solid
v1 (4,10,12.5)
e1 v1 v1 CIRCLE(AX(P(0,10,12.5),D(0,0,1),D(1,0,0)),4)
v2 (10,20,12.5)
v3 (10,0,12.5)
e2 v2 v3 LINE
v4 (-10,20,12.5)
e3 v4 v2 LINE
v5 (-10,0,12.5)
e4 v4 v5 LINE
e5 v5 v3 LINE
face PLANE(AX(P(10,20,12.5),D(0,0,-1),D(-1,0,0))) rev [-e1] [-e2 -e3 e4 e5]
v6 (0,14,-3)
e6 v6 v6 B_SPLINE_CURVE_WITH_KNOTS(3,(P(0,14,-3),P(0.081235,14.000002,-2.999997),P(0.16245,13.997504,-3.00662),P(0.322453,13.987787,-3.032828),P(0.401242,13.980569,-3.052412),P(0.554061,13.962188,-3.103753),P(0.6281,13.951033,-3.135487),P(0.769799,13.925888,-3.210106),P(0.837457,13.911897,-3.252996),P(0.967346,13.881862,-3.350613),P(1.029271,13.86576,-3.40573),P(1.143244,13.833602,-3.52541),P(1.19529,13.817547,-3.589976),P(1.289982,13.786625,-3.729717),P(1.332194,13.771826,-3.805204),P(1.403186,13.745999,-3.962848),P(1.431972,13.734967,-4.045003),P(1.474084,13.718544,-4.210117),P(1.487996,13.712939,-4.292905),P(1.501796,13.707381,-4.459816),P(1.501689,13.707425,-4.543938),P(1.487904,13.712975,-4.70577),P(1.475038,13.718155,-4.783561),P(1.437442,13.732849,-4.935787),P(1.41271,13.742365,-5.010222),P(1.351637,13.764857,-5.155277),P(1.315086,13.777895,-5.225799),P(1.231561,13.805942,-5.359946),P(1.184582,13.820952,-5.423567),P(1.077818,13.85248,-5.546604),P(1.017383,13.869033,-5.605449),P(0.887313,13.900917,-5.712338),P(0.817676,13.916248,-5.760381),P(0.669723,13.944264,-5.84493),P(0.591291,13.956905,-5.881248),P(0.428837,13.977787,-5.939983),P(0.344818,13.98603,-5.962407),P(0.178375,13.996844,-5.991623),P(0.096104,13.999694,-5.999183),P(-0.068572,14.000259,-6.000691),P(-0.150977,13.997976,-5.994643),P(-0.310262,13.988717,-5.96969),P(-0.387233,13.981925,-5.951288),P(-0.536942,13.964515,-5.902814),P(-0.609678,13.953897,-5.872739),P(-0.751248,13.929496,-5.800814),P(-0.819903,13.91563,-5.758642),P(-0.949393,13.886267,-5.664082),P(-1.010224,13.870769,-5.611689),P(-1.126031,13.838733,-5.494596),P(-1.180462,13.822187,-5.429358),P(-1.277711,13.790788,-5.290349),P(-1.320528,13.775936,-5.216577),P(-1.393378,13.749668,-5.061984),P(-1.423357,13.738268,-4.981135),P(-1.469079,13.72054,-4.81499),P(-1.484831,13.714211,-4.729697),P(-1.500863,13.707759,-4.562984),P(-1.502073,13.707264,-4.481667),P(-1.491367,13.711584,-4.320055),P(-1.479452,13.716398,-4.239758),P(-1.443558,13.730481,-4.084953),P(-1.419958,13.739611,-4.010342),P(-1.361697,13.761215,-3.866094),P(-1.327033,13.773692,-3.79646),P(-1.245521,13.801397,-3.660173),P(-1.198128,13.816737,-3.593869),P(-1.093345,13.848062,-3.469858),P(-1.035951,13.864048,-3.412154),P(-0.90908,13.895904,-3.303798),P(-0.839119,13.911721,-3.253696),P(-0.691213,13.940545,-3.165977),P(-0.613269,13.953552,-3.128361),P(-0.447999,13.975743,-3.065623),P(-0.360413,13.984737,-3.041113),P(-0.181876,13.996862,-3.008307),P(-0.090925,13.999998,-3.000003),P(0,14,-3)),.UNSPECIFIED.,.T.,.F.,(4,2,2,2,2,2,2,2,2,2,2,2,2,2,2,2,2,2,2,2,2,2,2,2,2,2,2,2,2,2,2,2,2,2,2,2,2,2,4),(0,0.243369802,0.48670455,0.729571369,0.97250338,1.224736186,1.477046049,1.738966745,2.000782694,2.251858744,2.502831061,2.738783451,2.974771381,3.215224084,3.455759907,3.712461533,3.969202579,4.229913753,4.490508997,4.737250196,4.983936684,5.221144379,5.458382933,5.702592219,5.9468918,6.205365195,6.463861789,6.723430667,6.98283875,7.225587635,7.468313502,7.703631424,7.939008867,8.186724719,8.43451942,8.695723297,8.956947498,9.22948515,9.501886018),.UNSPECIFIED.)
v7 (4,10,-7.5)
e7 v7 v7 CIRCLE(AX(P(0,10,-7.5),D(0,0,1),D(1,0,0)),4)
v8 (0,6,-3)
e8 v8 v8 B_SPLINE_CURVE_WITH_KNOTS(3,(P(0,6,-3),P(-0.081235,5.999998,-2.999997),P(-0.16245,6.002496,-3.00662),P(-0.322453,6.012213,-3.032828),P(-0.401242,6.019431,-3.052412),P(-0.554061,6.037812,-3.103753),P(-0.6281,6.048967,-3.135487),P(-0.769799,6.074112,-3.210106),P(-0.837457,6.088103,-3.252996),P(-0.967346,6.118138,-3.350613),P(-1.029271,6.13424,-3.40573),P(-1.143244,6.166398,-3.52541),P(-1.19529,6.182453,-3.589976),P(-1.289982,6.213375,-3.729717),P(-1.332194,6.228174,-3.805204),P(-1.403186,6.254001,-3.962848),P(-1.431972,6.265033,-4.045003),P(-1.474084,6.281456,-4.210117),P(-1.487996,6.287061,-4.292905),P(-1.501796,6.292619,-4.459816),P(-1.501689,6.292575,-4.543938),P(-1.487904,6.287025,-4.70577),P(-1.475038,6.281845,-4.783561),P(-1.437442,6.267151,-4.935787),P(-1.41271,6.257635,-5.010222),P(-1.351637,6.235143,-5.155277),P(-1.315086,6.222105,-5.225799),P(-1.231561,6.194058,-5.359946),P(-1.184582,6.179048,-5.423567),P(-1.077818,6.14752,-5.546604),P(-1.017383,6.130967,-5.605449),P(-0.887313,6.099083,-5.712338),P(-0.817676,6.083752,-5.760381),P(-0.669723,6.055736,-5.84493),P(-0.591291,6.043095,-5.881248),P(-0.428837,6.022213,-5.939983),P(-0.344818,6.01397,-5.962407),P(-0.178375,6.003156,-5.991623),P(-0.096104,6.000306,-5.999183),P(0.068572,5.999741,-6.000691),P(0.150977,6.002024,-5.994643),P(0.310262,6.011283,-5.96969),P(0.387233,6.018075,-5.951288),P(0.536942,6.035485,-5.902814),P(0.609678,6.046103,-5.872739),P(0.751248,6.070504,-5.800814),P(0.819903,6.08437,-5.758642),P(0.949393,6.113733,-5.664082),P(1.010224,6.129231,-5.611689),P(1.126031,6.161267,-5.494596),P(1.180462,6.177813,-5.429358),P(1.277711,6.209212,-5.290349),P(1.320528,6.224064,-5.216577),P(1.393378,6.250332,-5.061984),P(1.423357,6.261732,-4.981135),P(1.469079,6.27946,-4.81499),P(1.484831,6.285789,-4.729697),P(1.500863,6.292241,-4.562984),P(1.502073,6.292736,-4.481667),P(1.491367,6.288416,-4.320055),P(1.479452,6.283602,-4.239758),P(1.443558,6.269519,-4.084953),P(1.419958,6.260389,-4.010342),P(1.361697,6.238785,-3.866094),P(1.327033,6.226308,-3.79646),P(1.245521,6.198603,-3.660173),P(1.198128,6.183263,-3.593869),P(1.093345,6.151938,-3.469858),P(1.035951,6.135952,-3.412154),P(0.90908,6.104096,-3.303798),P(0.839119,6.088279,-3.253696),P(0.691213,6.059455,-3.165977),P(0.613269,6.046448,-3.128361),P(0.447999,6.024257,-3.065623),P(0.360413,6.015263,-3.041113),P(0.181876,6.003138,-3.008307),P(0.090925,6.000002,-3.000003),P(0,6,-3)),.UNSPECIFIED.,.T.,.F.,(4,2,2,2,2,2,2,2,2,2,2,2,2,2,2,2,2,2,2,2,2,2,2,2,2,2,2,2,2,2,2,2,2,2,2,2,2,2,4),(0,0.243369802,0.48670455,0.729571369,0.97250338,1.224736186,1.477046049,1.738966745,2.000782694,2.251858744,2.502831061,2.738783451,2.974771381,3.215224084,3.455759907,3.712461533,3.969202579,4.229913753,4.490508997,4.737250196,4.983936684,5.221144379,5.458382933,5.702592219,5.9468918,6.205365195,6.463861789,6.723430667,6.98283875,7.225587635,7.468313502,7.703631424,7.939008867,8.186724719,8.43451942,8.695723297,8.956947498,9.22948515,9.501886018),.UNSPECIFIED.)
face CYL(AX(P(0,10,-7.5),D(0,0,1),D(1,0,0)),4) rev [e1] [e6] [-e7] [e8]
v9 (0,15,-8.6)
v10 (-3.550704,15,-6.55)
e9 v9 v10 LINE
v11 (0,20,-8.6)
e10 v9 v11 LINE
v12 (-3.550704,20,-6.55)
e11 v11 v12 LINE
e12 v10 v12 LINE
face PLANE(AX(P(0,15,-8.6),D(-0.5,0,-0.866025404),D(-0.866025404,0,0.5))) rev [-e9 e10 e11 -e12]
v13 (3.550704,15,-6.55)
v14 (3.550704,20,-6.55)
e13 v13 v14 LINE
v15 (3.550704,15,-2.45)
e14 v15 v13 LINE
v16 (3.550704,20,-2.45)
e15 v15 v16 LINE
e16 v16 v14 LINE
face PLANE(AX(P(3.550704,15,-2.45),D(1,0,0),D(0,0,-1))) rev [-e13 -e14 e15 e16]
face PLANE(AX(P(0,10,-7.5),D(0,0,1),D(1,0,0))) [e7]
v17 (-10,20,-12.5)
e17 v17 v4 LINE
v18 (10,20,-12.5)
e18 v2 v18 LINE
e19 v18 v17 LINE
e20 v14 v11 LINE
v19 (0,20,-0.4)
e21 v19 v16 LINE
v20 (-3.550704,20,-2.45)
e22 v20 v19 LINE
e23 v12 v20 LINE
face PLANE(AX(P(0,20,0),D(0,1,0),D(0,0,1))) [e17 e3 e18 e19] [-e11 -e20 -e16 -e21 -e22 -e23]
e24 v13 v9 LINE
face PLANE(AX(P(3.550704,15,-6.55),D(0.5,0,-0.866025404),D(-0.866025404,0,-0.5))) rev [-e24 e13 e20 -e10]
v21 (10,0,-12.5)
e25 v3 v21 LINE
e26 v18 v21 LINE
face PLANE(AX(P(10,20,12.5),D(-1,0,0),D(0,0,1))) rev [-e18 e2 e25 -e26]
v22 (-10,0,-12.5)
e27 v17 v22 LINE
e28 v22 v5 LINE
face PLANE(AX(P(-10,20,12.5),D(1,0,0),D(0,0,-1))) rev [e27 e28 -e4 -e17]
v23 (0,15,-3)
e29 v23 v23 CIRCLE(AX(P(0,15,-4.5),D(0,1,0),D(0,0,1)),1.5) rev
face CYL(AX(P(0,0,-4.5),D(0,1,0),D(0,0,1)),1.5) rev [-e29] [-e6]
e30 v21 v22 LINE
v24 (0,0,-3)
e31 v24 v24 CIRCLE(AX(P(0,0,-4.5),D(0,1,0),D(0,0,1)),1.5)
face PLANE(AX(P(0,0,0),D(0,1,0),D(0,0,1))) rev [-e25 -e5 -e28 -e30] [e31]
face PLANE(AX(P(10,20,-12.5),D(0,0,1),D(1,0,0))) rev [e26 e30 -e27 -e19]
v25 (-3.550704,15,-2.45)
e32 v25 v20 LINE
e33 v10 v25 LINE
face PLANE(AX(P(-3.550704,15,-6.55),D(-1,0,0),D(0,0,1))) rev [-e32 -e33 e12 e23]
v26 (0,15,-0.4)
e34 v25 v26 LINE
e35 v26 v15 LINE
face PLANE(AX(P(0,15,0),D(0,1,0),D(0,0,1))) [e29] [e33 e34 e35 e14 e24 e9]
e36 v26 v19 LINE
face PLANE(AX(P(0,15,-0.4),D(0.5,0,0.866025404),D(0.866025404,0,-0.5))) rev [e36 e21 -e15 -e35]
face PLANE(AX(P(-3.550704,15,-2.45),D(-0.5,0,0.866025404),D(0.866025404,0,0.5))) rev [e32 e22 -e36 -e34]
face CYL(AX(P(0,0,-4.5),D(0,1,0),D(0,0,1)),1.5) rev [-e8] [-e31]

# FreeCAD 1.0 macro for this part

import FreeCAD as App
import Part
import Sketcher
Q = App.Units.Quantity

doc = App.newDocument("Part")
body = doc.addObject("PartDesign::Body", "Body")

sketch1 = doc.addObject("Sketcher::SketchObject", "Sketch")
body.addObject(sketch1)
sketch1.AttachmentSupport = (doc.XZ_Plane, [""])
sketch1.MapMode = "FlatFace"
sketch1.addGeometry(Part.LineSegment(App.Vector(-10, -12, 0), App.Vector(-10, 12, 0)), False)
sketch1.addGeometry(Part.LineSegment(App.Vector(-10, 12, 0), App.Vector(10, 12, 0)), False)
sketch1.addGeometry(Part.LineSegment(App.Vector(10, 12, 0), App.Vector(10, -12, 0)), False)
sketch1.addGeometry(Part.LineSegment(App.Vector(10, -12, 0), App.Vector(-10, -12, 0)), False)
sketch1.addConstraint(Sketcher.Constraint("Coincident", 0, 2, 1, 1))
sketch1.addConstraint(Sketcher.Constraint("Coincident", 1, 2, 2, 1))
sketch1.addConstraint(Sketcher.Constraint("Coincident", 2, 2, 3, 1))
sketch1.addConstraint(Sketcher.Constraint("Coincident", 3, 2, 0, 1))
sketch1.addConstraint(Sketcher.Constraint("Vertical", 0))
sketch1.addConstraint(Sketcher.Constraint("Horizontal", 1))
sketch1.addConstraint(Sketcher.Constraint("Vertical", 2))
sketch1.addConstraint(Sketcher.Constraint("Horizontal", 3))
sketch1.addConstraint(Sketcher.Constraint("Symmetric", 0, 2, 2, 2, -1, 1))
sketch1.addConstraint(Sketcher.Constraint("DistanceX", 1, 1, 1, 2, Q("20 mm")))
sketch1.addConstraint(Sketcher.Constraint("DistanceY", 0, 1, 0, 2, Q("25 mm")))
pad1 = doc.addObject("PartDesign::Pad", "Pad")
body.addObject(pad1)
pad1.Profile = sketch1
pad1.Length = 20
pad1.Reversed = True

sketch2 = doc.addObject("Sketcher::SketchObject", "Sketch001")
body.addObject(sketch2)
sketch2.AttachmentSupport = (doc.XY_Plane, [""])
sketch2.MapMode = "FlatFace"
sketch2.AttachmentOffset = App.Placement(App.Vector(0, 0, 12.5), App.Rotation())
sketch2.addGeometry(Part.Circle(App.Vector(0, 10, 0), App.Vector(0, 0, 1), 4), False)
sketch2.addConstraint(Sketcher.Constraint("PointOnObject", 0, 3, -2))
sketch2.addConstraint(Sketcher.Constraint("Diameter", 0, Q("8 mm")))
sketch2.addConstraint(Sketcher.Constraint("DistanceY", -1, 1, 0, 3, Q("10 mm")))
pocket1 = doc.addObject("PartDesign::Pocket", "Pocket")
body.addObject(pocket1)
pocket1.Profile = sketch2
pocket1.Length = 20

sketch3 = doc.addObject("Sketcher::SketchObject", "Sketch002")
body.addObject(sketch3)
sketch3.AttachmentSupport = (doc.XZ_Plane, [""])
sketch3.MapMode = "FlatFace"
sketch3.AttachmentOffset = App.Placement(App.Vector(0, 0, -20), App.Rotation())
sketch3.addGeometry(Part.Circle(App.Vector(0, -4.5, 0), App.Vector(0, 0, 1), 1.5), False)
sketch3.addConstraint(Sketcher.Constraint("PointOnObject", 0, 3, -2))
sketch3.addConstraint(Sketcher.Constraint("Diameter", 0, Q("3 mm")))
sketch3.addConstraint(Sketcher.Constraint("DistanceY", 0, 3, -1, 1, Q("4.5 mm")))
pocket2 = doc.addObject("PartDesign::Pocket", "Pocket001")
body.addObject(pocket2)
pocket2.Profile = sketch3
pocket2.Type = "ThroughAll"
pocket2.Reversed = True

sketch4 = doc.addObject("Sketcher::SketchObject", "Sketch003")
body.addObject(sketch4)
sketch4.AttachmentSupport = (doc.XZ_Plane, [""])
sketch4.MapMode = "FlatFace"
sketch4.AttachmentOffset = App.Placement(App.Vector(0, 0, -20), App.Rotation())
sketch4.addGeometry(Part.LineSegment(App.Vector(0, -8.6, 0), App.Vector(-3.6, -6.5, 0)), False)
sketch4.addGeometry(Part.LineSegment(App.Vector(-3.6, -6.5, 0), App.Vector(-3.6, -2.5, 0)), False)
sketch4.addGeometry(Part.LineSegment(App.Vector(-3.6, -2.5, 0), App.Vector(0, -0.4, 0)), False)
sketch4.addGeometry(Part.LineSegment(App.Vector(0, -0.4, 0), App.Vector(3.6, -2.5, 0)), False)
sketch4.addGeometry(Part.LineSegment(App.Vector(3.6, -2.5, 0), App.Vector(3.6, -6.5, 0)), False)
sketch4.addGeometry(Part.LineSegment(App.Vector(3.6, -6.5, 0), App.Vector(0, -8.6, 0)), False)
sketch4.addConstraint(Sketcher.Constraint("Coincident", 0, 2, 1, 1))
sketch4.addConstraint(Sketcher.Constraint("Coincident", 1, 2, 2, 1))
sketch4.addConstraint(Sketcher.Constraint("Coincident", 2, 2, 3, 1))
sketch4.addConstraint(Sketcher.Constraint("Coincident", 3, 2, 4, 1))
sketch4.addConstraint(Sketcher.Constraint("Coincident", 4, 2, 5, 1))
sketch4.addConstraint(Sketcher.Constraint("Coincident", 5, 2, 0, 1))
sketch4.addConstraint(Sketcher.Constraint("Vertical", 1))
sketch4.addConstraint(Sketcher.Constraint("Vertical", 4))
sketch4.addConstraint(Sketcher.Constraint("Symmetric", 1, 2, 3, 2, -2))
sketch4.addConstraint(Sketcher.Constraint("PointOnObject", 2, 2, -2))
sketch4.addConstraint(Sketcher.Constraint("PointOnObject", 5, 2, -2))
sketch4.addConstraint(Sketcher.Constraint("Parallel", 0, 3))
sketch4.addConstraint(Sketcher.Constraint("Parallel", 2, 5))
sketch4.addConstraint(Sketcher.Constraint("Angle", 0, Q("150 deg")))
sketch4.addConstraint(Sketcher.Constraint("DistanceY", 1, 1, 1, 2, Q("4.1 mm")))
sketch4.addConstraint(Sketcher.Constraint("Distance", 0, Q("4.1 mm")))
sketch4.addConstraint(Sketcher.Constraint("DistanceY", 2, 2, -1, 1, Q("0.4 mm")))
pocket3 = doc.addObject("PartDesign::Pocket", "Pocket002")
body.addObject(pocket3)
pocket3.Profile = sketch4
pocket3.Length = 5
pocket3.Reversed = True

doc.recompute()
